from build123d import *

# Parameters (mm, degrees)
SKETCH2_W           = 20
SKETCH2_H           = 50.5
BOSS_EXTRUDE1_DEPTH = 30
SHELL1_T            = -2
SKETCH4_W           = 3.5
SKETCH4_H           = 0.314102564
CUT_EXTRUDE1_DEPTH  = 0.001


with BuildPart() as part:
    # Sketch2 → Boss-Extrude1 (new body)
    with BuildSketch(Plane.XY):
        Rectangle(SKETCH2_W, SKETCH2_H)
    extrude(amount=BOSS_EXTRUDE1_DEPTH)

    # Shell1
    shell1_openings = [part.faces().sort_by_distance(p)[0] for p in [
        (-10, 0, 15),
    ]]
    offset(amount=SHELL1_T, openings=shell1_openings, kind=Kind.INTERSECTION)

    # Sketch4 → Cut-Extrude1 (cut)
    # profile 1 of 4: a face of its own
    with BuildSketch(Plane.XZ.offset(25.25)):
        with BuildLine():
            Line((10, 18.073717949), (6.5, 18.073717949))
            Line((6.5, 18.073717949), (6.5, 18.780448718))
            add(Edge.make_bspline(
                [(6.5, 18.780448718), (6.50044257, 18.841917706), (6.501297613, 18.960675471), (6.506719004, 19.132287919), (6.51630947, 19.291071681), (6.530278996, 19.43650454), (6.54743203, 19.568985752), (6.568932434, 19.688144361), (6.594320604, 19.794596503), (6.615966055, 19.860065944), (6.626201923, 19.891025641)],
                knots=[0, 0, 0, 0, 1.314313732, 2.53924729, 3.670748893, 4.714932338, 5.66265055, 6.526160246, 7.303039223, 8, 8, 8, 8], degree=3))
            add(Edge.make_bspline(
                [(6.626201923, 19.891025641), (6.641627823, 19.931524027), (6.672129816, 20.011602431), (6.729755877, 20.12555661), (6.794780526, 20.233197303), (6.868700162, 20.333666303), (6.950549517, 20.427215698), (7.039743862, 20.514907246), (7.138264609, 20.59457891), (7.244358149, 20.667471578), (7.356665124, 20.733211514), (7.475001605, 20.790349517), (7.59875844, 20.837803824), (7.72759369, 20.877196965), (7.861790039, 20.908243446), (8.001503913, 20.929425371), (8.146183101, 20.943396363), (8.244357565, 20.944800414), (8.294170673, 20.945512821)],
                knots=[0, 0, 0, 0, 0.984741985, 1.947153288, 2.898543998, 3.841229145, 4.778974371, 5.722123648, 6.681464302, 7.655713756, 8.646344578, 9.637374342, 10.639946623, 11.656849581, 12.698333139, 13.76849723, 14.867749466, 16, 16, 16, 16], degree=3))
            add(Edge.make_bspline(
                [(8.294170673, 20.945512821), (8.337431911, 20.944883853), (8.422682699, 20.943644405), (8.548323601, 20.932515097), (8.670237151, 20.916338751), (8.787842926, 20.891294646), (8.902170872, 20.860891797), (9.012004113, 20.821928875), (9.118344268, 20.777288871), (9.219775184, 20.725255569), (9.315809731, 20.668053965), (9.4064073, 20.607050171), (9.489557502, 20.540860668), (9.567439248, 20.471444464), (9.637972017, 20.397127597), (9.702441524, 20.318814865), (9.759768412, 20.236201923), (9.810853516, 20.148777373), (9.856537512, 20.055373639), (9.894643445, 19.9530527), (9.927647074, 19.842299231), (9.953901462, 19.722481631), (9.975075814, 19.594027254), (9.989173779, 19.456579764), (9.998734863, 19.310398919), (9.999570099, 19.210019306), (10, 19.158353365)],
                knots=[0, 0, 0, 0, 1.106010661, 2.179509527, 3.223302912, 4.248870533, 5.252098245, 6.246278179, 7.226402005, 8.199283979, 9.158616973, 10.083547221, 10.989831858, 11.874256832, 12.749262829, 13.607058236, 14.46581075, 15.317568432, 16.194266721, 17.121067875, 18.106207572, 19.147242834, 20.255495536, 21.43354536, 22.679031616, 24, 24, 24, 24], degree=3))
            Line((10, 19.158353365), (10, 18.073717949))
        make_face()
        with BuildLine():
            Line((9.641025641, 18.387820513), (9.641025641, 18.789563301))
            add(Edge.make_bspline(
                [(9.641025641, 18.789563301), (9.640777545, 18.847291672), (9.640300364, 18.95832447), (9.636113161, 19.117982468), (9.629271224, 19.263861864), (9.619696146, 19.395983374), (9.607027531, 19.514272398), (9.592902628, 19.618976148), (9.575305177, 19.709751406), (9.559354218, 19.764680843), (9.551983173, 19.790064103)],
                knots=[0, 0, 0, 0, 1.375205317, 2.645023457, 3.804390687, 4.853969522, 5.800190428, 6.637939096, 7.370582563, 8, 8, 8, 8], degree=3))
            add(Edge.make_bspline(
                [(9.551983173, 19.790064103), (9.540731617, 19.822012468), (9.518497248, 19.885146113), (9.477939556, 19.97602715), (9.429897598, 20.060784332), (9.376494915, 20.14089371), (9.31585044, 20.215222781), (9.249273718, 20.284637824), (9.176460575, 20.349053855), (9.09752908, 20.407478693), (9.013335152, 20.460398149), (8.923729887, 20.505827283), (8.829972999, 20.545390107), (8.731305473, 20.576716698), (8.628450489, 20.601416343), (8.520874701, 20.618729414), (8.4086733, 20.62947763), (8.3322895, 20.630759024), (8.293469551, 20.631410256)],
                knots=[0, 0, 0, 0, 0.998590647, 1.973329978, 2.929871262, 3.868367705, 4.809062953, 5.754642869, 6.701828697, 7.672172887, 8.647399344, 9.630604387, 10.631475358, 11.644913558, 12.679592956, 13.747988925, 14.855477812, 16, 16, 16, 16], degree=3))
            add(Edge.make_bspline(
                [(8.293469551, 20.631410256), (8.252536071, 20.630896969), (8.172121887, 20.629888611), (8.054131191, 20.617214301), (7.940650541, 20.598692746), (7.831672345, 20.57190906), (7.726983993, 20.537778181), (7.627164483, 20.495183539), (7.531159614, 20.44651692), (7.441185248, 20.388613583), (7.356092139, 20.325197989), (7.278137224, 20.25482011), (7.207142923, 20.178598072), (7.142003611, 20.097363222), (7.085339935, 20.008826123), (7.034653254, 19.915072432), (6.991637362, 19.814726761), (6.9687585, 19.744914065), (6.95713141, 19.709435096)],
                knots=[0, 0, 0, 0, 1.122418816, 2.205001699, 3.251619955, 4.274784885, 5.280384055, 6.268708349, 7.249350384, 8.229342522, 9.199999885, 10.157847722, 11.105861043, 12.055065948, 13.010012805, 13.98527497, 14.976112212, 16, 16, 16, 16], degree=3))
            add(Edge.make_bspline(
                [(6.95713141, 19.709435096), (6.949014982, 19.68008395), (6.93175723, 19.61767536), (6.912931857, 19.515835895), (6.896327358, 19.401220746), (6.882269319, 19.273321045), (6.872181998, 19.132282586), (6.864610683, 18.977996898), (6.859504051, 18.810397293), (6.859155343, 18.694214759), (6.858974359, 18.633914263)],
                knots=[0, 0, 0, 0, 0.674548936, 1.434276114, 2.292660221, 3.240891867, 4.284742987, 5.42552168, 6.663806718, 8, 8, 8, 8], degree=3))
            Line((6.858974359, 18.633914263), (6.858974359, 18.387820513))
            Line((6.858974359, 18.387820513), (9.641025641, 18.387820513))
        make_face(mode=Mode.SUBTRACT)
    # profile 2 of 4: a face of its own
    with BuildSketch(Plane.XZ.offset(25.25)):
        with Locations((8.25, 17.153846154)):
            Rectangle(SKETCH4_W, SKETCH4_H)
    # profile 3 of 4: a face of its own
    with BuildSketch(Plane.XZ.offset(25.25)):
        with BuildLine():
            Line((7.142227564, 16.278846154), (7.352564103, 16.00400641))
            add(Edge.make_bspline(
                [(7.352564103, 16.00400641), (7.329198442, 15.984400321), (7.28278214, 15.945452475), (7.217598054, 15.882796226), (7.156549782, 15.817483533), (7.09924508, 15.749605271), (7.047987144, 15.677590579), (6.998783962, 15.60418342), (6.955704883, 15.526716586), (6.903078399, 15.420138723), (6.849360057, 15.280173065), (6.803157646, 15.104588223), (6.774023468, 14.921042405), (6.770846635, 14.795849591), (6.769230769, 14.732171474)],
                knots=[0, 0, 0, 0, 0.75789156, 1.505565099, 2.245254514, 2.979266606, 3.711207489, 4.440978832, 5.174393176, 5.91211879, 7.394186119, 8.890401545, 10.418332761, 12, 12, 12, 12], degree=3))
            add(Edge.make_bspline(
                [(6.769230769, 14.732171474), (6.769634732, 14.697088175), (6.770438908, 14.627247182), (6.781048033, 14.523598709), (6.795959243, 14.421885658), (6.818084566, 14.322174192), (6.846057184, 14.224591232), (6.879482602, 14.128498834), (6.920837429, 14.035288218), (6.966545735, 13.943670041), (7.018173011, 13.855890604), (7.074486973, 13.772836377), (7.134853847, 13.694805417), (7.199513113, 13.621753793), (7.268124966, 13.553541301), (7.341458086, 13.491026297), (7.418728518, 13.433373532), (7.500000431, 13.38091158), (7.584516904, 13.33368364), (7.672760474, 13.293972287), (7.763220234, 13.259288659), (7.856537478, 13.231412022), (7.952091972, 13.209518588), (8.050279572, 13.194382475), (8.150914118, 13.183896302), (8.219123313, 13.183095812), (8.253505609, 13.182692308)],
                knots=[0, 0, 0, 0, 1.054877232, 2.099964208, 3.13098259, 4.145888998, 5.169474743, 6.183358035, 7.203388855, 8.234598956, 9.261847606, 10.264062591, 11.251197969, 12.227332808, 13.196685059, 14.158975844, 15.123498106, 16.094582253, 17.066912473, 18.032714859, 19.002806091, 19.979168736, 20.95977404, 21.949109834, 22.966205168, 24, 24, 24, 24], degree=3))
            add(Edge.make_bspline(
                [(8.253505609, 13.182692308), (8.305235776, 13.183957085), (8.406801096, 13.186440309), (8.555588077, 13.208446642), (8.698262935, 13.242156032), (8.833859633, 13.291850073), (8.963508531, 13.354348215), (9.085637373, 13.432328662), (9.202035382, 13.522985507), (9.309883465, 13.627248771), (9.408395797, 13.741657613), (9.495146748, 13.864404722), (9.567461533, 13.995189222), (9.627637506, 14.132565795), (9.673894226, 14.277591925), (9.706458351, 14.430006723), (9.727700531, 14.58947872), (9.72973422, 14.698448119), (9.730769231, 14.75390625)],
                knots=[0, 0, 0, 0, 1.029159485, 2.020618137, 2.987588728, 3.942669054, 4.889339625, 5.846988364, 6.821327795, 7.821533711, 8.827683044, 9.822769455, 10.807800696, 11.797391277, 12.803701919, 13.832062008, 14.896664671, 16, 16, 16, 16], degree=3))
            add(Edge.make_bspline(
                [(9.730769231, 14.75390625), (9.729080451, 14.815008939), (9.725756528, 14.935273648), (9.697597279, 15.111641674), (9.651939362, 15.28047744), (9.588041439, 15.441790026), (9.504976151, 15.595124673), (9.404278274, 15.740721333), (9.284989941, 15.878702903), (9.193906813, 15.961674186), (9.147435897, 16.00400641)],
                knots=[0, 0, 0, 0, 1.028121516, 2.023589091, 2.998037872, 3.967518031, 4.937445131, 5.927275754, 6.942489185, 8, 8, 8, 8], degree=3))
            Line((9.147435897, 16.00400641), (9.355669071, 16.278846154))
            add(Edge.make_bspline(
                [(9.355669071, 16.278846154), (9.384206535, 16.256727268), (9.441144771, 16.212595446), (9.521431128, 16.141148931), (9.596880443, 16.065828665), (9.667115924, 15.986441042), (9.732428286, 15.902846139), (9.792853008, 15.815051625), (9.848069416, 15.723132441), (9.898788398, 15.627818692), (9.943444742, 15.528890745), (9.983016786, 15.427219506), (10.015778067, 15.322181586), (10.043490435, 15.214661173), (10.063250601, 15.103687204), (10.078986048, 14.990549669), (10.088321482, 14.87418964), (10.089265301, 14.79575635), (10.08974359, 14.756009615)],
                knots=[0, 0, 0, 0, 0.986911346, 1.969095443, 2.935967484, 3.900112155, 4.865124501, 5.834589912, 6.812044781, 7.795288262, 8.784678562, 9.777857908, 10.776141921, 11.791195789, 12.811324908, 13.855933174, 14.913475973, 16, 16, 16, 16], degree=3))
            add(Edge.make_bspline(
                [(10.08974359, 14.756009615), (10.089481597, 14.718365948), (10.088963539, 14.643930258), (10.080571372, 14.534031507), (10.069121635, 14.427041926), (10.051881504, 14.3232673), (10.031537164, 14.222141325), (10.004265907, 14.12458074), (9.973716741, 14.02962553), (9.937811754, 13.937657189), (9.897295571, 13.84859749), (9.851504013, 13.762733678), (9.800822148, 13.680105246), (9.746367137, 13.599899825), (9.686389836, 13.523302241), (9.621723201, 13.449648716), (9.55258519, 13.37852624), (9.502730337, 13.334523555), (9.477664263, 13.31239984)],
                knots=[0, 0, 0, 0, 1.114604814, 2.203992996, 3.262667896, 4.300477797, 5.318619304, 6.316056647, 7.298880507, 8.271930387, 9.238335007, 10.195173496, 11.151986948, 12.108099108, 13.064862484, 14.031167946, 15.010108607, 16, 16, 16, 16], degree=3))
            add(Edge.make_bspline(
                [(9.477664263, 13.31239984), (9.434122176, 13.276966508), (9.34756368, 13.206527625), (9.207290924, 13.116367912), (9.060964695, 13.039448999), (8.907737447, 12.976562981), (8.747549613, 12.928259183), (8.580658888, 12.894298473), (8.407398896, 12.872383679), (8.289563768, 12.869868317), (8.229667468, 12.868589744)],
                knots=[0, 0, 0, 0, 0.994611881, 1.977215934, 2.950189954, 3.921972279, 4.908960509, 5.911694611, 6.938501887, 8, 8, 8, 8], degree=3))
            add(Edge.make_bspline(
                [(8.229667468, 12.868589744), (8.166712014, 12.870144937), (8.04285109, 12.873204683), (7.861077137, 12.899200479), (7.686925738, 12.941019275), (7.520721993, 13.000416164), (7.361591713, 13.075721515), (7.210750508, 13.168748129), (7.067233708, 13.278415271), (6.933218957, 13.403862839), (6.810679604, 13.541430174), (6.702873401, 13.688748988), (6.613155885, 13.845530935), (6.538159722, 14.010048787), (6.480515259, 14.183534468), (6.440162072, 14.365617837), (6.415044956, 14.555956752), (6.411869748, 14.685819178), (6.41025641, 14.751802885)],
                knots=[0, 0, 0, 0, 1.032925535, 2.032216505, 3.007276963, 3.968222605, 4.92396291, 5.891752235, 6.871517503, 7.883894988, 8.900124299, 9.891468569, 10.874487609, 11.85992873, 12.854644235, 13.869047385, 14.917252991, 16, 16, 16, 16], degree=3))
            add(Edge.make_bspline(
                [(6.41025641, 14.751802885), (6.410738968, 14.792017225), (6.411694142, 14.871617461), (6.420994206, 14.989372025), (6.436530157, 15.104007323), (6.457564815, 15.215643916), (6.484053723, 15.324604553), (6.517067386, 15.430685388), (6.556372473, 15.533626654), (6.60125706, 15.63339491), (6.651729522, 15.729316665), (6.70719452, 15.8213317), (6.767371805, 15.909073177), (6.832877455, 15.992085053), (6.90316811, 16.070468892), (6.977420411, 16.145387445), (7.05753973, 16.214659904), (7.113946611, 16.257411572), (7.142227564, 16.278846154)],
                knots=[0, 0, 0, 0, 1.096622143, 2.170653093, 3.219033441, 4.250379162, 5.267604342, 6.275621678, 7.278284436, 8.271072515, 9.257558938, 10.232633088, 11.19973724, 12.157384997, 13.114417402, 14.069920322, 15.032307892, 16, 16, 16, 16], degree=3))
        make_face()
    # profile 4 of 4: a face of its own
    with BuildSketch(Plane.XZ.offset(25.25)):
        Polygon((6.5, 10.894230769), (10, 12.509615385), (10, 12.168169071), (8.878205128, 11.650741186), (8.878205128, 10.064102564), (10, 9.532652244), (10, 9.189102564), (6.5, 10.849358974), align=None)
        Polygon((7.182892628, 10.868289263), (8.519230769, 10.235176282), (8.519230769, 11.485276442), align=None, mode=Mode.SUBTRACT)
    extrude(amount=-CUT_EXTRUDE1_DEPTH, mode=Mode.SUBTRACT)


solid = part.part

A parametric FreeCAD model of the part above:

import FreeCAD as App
import Part
import Sketcher
Q = App.Units.Quantity


def faces_at(feature, points):
    """Names of the faces that lie closest to the given points."""
    faces = feature.Shape.Faces
    near = lambda p: min(range(len(faces)), key=lambda i: faces[i].distToShape(Part.Vertex(*p))[0])
    return sorted({f"Face{near(p) + 1}" for p in points})


def add_polygon(sketch, points):
    """Adds a closed chain of lines whose ends are joined by coincident constraints."""
    first, n = sketch.GeometryCount, len(points)
    for a, b in zip(points, points[1:] + points[:1]):
        sketch.addGeometry(Part.LineSegment(App.Vector(*a, 0), App.Vector(*b, 0)), False)
    for i in range(n):
        sketch.addConstraint(Sketcher.Constraint("Coincident", first + i, 2, first + (i + 1) % n, 1))

doc = App.newDocument("Part")
params = doc.addObject("Spreadsheet::Sheet", "Params")
for row, (alias, value) in enumerate([
    ("sketch1_width", "20 mm"),
    ("sketch1_height", "50.5 mm"),
    ("pad1_length", "30 mm"),
    ("thickness_wall", "2 mm"),
    ("pocket1_length", "0.001 mm"),
], start=1):
    params.set(f"A{row}", alias)
    params.set(f"B{row}", "=" + value)
    params.setAlias(f"B{row}", alias)

body = doc.addObject("PartDesign::Body", "Body")

sketch1 = doc.addObject("Sketcher::SketchObject", "Sketch")
body.addObject(sketch1)
sketch1.AttachmentSupport = (doc.XY_Plane, [""])
sketch1.MapMode = "FlatFace"
add_polygon(sketch1, [(-10, 25), (-10, -25), (10, -25), (10, 25)])
sketch1.addConstraint(Sketcher.Constraint("Vertical", 0))
sketch1.addConstraint(Sketcher.Constraint("Horizontal", 1))
sketch1.addConstraint(Sketcher.Constraint("Vertical", 2))
sketch1.addConstraint(Sketcher.Constraint("Horizontal", 3))
sketch1.addConstraint(Sketcher.Constraint("Symmetric", 0, 2, 2, 2, -1, 1))
sketch1.addConstraint(Sketcher.Constraint("DistanceX", 1, 1, 1, 2, Q("20 mm")))
sketch1.addConstraint(Sketcher.Constraint("DistanceY", 0, 2, 0, 1, Q("50.5 mm")))
sketch1.setExpression("Constraints[9]", "Params.sketch1_width")
sketch1.setExpression("Constraints[10]", "Params.sketch1_height")
pad1 = doc.addObject("PartDesign::Pad", "Pad")
body.addObject(pad1)
pad1.Profile = sketch1
pad1.setExpression("Length", "Params.pad1_length")
doc.recompute()

thickness = doc.addObject("PartDesign::Thickness", "Thickness")
body.addObject(thickness)
thickness.Base = (pad1, faces_at(pad1, [(-10, 0, 15)]))
thickness.setExpression("Value", "Params.thickness_wall")
thickness.Reversed = True
thickness.Join = "Intersection"

sketch2 = doc.addObject("Sketcher::SketchObject", "Sketch001")
body.addObject(sketch2)
sketch2.AttachmentSupport = (doc.XZ_Plane, [""])
sketch2.MapMode = "FlatFace"
sketch2.AttachmentOffset = App.Placement(App.Vector(0, 0, 25.25), App.Rotation())
sketch2.addGeometry(Part.LineSegment(App.Vector(6.5, 18.073718, 0), App.Vector(10, 18.073718, 0)), False)
sketch2.addGeometry(Part.LineSegment(App.Vector(10, 18.073718, 0), App.Vector(10, 19.158353, 0)), False)
sketch2.addGeometry(Part.BSplineCurve([App.Vector(8.294171, 20.945513, 0), App.Vector(8.337432, 20.944884, 0), App.Vector(8.422683, 20.943644, 0), App.Vector(8.548324, 20.932515, 0), App.Vector(8.670237, 20.916339, 0), App.Vector(8.787843, 20.891295, 0), App.Vector(8.902171, 20.860892, 0), App.Vector(9.012004, 20.821929, 0), App.Vector(9.118344, 20.777289, 0), App.Vector(9.219775, 20.725256, 0), App.Vector(9.31581, 20.668054, 0), App.Vector(9.406407, 20.60705, 0), App.Vector(9.489558, 20.540861, 0), App.Vector(9.567439, 20.471444, 0), App.Vector(9.637972, 20.397128, 0), App.Vector(9.702442, 20.318815, 0), App.Vector(9.759768, 20.236202, 0), App.Vector(9.810854, 20.148777, 0), App.Vector(9.856538, 20.055374, 0), App.Vector(9.894643, 19.953053, 0), App.Vector(9.927647, 19.842299, 0), App.Vector(9.953901, 19.722482, 0), App.Vector(9.975076, 19.594027, 0), App.Vector(9.989174, 19.45658, 0), App.Vector(9.998735, 19.310399, 0), App.Vector(9.99957, 19.210019, 0), App.Vector(10, 19.158353, 0)], [4, 1, 1, 1, 1, 1, 1, 1, 1, 1, 1, 1, 1, 1, 1, 1, 1, 1, 1, 1, 1, 1, 1, 1, 4], [0, 1.106010661, 2.179509527, 3.223302912, 4.248870533, 5.252098245, 6.246278179, 7.226402005, 8.199283979, 9.158616973, 10.083547221, 10.989831858, 11.874256832, 12.749262829, 13.607058236, 14.46581075, 15.317568432, 16.194266721, 17.121067875, 18.106207572, 19.147242834, 20.255495536, 21.43354536, 22.679031616, 24], False, 3, [1, 1, 1, 1, 1, 1, 1, 1, 1, 1, 1, 1, 1, 1, 1, 1, 1, 1, 1, 1, 1, 1, 1, 1, 1, 1, 1], False), False)
sketch2.addGeometry(Part.BSplineCurve([App.Vector(6.626202, 19.891026, 0), App.Vector(6.641628, 19.931524, 0), App.Vector(6.67213, 20.011602, 0), App.Vector(6.729756, 20.125557, 0), App.Vector(6.794781, 20.233197, 0), App.Vector(6.8687, 20.333666, 0), App.Vector(6.95055, 20.427216, 0), App.Vector(7.039744, 20.514907, 0), App.Vector(7.138265, 20.594579, 0), App.Vector(7.244358, 20.667472, 0), App.Vector(7.356665, 20.733212, 0), App.Vector(7.475002, 20.79035, 0), App.Vector(7.598758, 20.837804, 0), App.Vector(7.727594, 20.877197, 0), App.Vector(7.86179, 20.908243, 0), App.Vector(8.001504, 20.929425, 0), App.Vector(8.146183, 20.943396, 0), App.Vector(8.244358, 20.9448, 0), App.Vector(8.294171, 20.945513, 0)], [4, 1, 1, 1, 1, 1, 1, 1, 1, 1, 1, 1, 1, 1, 1, 1, 4], [0, 0.984741985, 1.947153288, 2.898543998, 3.841229145, 4.778974371, 5.722123648, 6.681464302, 7.655713756, 8.646344578, 9.637374342, 10.639946623, 11.656849581, 12.698333139, 13.76849723, 14.867749466, 16], False, 3, [1, 1, 1, 1, 1, 1, 1, 1, 1, 1, 1, 1, 1, 1, 1, 1, 1, 1, 1], False), False)
sketch2.addGeometry(Part.BSplineCurve([App.Vector(6.5, 18.780449, 0), App.Vector(6.500443, 18.841918, 0), App.Vector(6.501298, 18.960675, 0), App.Vector(6.506719, 19.132288, 0), App.Vector(6.516309, 19.291072, 0), App.Vector(6.530279, 19.436505, 0), App.Vector(6.547432, 19.568986, 0), App.Vector(6.568932, 19.688144, 0), App.Vector(6.594321, 19.794597, 0), App.Vector(6.615966, 19.860066, 0), App.Vector(6.626202, 19.891026, 0)], [4, 1, 1, 1, 1, 1, 1, 1, 4], [0, 1.314313732, 2.53924729, 3.670748893, 4.714932338, 5.66265055, 6.526160246, 7.303039223, 8], False, 3, [1, 1, 1, 1, 1, 1, 1, 1, 1, 1, 1], False), False)
sketch2.addGeometry(Part.LineSegment(App.Vector(6.5, 18.780449, 0), App.Vector(6.5, 18.073718, 0)), False)
sketch2.addGeometry(Part.LineSegment(App.Vector(9.641026, 18.387821, 0), App.Vector(6.858974, 18.387821, 0)), False)
sketch2.addGeometry(Part.LineSegment(App.Vector(6.858974, 18.387821, 0), App.Vector(6.858974, 18.633914, 0)), False)
sketch2.addGeometry(Part.BSplineCurve([App.Vector(6.957131, 19.709435, 0), App.Vector(6.949015, 19.680084, 0), App.Vector(6.931757, 19.617675, 0), App.Vector(6.912932, 19.515836, 0), App.Vector(6.896327, 19.401221, 0), App.Vector(6.882269, 19.273321, 0), App.Vector(6.872182, 19.132283, 0), App.Vector(6.864611, 18.977997, 0), App.Vector(6.859504, 18.810397, 0), App.Vector(6.859155, 18.694215, 0), App.Vector(6.858974, 18.633914, 0)], [4, 1, 1, 1, 1, 1, 1, 1, 4], [0, 0.674548936, 1.434276114, 2.292660221, 3.240891867, 4.284742987, 5.42552168, 6.663806718, 8], False, 3, [1, 1, 1, 1, 1, 1, 1, 1, 1, 1, 1], False), False)
sketch2.addGeometry(Part.BSplineCurve([App.Vector(8.29347, 20.63141, 0), App.Vector(8.252536, 20.630897, 0), App.Vector(8.172122, 20.629889, 0), App.Vector(8.054131, 20.617214, 0), App.Vector(7.940651, 20.598693, 0), App.Vector(7.831672, 20.571909, 0), App.Vector(7.726984, 20.537778, 0), App.Vector(7.627164, 20.495184, 0), App.Vector(7.53116, 20.446517, 0), App.Vector(7.441185, 20.388614, 0), App.Vector(7.356092, 20.325198, 0), App.Vector(7.278137, 20.25482, 0), App.Vector(7.207143, 20.178598, 0), App.Vector(7.142004, 20.097363, 0), App.Vector(7.08534, 20.008826, 0), App.Vector(7.034653, 19.915072, 0), App.Vector(6.991637, 19.814727, 0), App.Vector(6.968758, 19.744914, 0), App.Vector(6.957131, 19.709435, 0)], [4, 1, 1, 1, 1, 1, 1, 1, 1, 1, 1, 1, 1, 1, 1, 1, 4], [0, 1.122418816, 2.205001699, 3.251619955, 4.274784885, 5.280384055, 6.268708349, 7.249350384, 8.229342522, 9.199999885, 10.157847722, 11.105861043, 12.055065948, 13.010012805, 13.98527497, 14.976112212, 16], False, 3, [1, 1, 1, 1, 1, 1, 1, 1, 1, 1, 1, 1, 1, 1, 1, 1, 1, 1, 1], False), False)
sketch2.addGeometry(Part.BSplineCurve([App.Vector(9.551983, 19.790064, 0), App.Vector(9.540732, 19.822012, 0), App.Vector(9.518497, 19.885146, 0), App.Vector(9.47794, 19.976027, 0), App.Vector(9.429898, 20.060784, 0), App.Vector(9.376495, 20.140894, 0), App.Vector(9.31585, 20.215223, 0), App.Vector(9.249274, 20.284638, 0), App.Vector(9.176461, 20.349054, 0), App.Vector(9.097529, 20.407479, 0), App.Vector(9.013335, 20.460398, 0), App.Vector(8.92373, 20.505827, 0), App.Vector(8.829973, 20.54539, 0), App.Vector(8.731305, 20.576717, 0), App.Vector(8.62845, 20.601416, 0), App.Vector(8.520875, 20.618729, 0), App.Vector(8.408673, 20.629478, 0), App.Vector(8.332289, 20.630759, 0), App.Vector(8.29347, 20.63141, 0)], [4, 1, 1, 1, 1, 1, 1, 1, 1, 1, 1, 1, 1, 1, 1, 1, 4], [0, 0.998590647, 1.973329978, 2.929871262, 3.868367705, 4.809062953, 5.754642869, 6.701828697, 7.672172887, 8.647399344, 9.630604387, 10.631475358, 11.644913558, 12.679592956, 13.747988925, 14.855477812, 16], False, 3, [1, 1, 1, 1, 1, 1, 1, 1, 1, 1, 1, 1, 1, 1, 1, 1, 1, 1, 1], False), False)
sketch2.addGeometry(Part.BSplineCurve([App.Vector(9.641026, 18.789563, 0), App.Vector(9.640778, 18.847292, 0), App.Vector(9.6403, 18.958324, 0), App.Vector(9.636113, 19.117982, 0), App.Vector(9.629271, 19.263862, 0), App.Vector(9.619696, 19.395983, 0), App.Vector(9.607028, 19.514272, 0), App.Vector(9.592903, 19.618976, 0), App.Vector(9.575305, 19.709751, 0), App.Vector(9.559354, 19.764681, 0), App.Vector(9.551983, 19.790064, 0)], [4, 1, 1, 1, 1, 1, 1, 1, 4], [0, 1.375205317, 2.645023457, 3.804390687, 4.853969522, 5.800190428, 6.637939096, 7.370582563, 8], False, 3, [1, 1, 1, 1, 1, 1, 1, 1, 1, 1, 1], False), False)
sketch2.addGeometry(Part.LineSegment(App.Vector(9.641026, 18.789563, 0), App.Vector(9.641026, 18.387821, 0)), False)
add_polygon(sketch2, [(6.5, 17.310897), (6.5, 16.996795), (10, 16.996795), (10, 17.310897)])
sketch2.addGeometry(Part.LineSegment(App.Vector(7.352564, 16.004006, 0), App.Vector(7.142228, 16.278846, 0)), False)
sketch2.addGeometry(Part.BSplineCurve([App.Vector(6.410256, 14.751803, 0), App.Vector(6.410739, 14.792017, 0), App.Vector(6.411694, 14.871617, 0), App.Vector(6.420994, 14.989372, 0), App.Vector(6.43653, 15.104007, 0), App.Vector(6.457565, 15.215644, 0), App.Vector(6.484054, 15.324605, 0), App.Vector(6.517067, 15.430685, 0), App.Vector(6.556372, 15.533627, 0), App.Vector(6.601257, 15.633395, 0), App.Vector(6.65173, 15.729317, 0), App.Vector(6.707195, 15.821332, 0), App.Vector(6.767372, 15.909073, 0), App.Vector(6.832877, 15.992085, 0), App.Vector(6.903168, 16.070469, 0), App.Vector(6.97742, 16.145387, 0), App.Vector(7.05754, 16.21466, 0), App.Vector(7.113947, 16.257412, 0), App.Vector(7.142228, 16.278846, 0)], [4, 1, 1, 1, 1, 1, 1, 1, 1, 1, 1, 1, 1, 1, 1, 1, 4], [0, 1.096622143, 2.170653093, 3.219033441, 4.250379162, 5.267604342, 6.275621678, 7.278284436, 8.271072515, 9.257558938, 10.232633088, 11.19973724, 12.157384997, 13.114417402, 14.069920322, 15.032307892, 16], False, 3, [1, 1, 1, 1, 1, 1, 1, 1, 1, 1, 1, 1, 1, 1, 1, 1, 1, 1, 1], False), False)
sketch2.addGeometry(Part.BSplineCurve([App.Vector(8.229667, 12.86859, 0), App.Vector(8.166712, 12.870145, 0), App.Vector(8.042851, 12.873205, 0), App.Vector(7.861077, 12.8992, 0), App.Vector(7.686926, 12.941019, 0), App.Vector(7.520722, 13.000416, 0), App.Vector(7.361592, 13.075722, 0), App.Vector(7.210751, 13.168748, 0), App.Vector(7.067234, 13.278415, 0), App.Vector(6.933219, 13.403863, 0), App.Vector(6.81068, 13.54143, 0), App.Vector(6.702873, 13.688749, 0), App.Vector(6.613156, 13.845531, 0), App.Vector(6.53816, 14.010049, 0), App.Vector(6.480515, 14.183534, 0), App.Vector(6.440162, 14.365618, 0), App.Vector(6.415045, 14.555957, 0), App.Vector(6.41187, 14.685819, 0), App.Vector(6.410256, 14.751803, 0)], [4, 1, 1, 1, 1, 1, 1, 1, 1, 1, 1, 1, 1, 1, 1, 1, 4], [0, 1.032925535, 2.032216505, 3.007276963, 3.968222605, 4.92396291, 5.891752235, 6.871517503, 7.883894988, 8.900124299, 9.891468569, 10.874487609, 11.85992873, 12.854644235, 13.869047385, 14.917252991, 16], False, 3, [1, 1, 1, 1, 1, 1, 1, 1, 1, 1, 1, 1, 1, 1, 1, 1, 1, 1, 1], False), False)
sketch2.addGeometry(Part.BSplineCurve([App.Vector(9.477664, 13.3124, 0), App.Vector(9.434122, 13.276967, 0), App.Vector(9.347564, 13.206528, 0), App.Vector(9.207291, 13.116368, 0), App.Vector(9.060965, 13.039449, 0), App.Vector(8.907737, 12.976563, 0), App.Vector(8.74755, 12.928259, 0), App.Vector(8.580659, 12.894298, 0), App.Vector(8.407399, 12.872384, 0), App.Vector(8.289564, 12.869868, 0), App.Vector(8.229667, 12.86859, 0)], [4, 1, 1, 1, 1, 1, 1, 1, 4], [0, 0.994611881, 1.977215934, 2.950189954, 3.921972279, 4.908960509, 5.911694611, 6.938501887, 8], False, 3, [1, 1, 1, 1, 1, 1, 1, 1, 1, 1, 1], False), False)
sketch2.addGeometry(Part.BSplineCurve([App.Vector(10.089744, 14.75601, 0), App.Vector(10.089482, 14.718366, 0), App.Vector(10.088964, 14.64393, 0), App.Vector(10.080571, 14.534032, 0), App.Vector(10.069122, 14.427042, 0), App.Vector(10.051882, 14.323267, 0), App.Vector(10.031537, 14.222141, 0), App.Vector(10.004266, 14.124581, 0), App.Vector(9.973717, 14.029626, 0), App.Vector(9.937812, 13.937657, 0), App.Vector(9.897296, 13.848597, 0), App.Vector(9.851504, 13.762734, 0), App.Vector(9.800822, 13.680105, 0), App.Vector(9.746367, 13.5999, 0), App.Vector(9.68639, 13.523302, 0), App.Vector(9.621723, 13.449649, 0), App.Vector(9.552585, 13.378526, 0), App.Vector(9.50273, 13.334524, 0), App.Vector(9.477664, 13.3124, 0)], [4, 1, 1, 1, 1, 1, 1, 1, 1, 1, 1, 1, 1, 1, 1, 1, 4], [0, 1.114604814, 2.203992996, 3.262667896, 4.300477797, 5.318619304, 6.316056647, 7.298880507, 8.271930387, 9.238335007, 10.195173496, 11.151986948, 12.108099108, 13.064862484, 14.031167946, 15.010108607, 16], False, 3, [1, 1, 1, 1, 1, 1, 1, 1, 1, 1, 1, 1, 1, 1, 1, 1, 1, 1, 1], False), False)
sketch2.addGeometry(Part.BSplineCurve([App.Vector(9.355669, 16.278846, 0), App.Vector(9.384207, 16.256727, 0), App.Vector(9.441145, 16.212595, 0), App.Vector(9.521431, 16.141149, 0), App.Vector(9.59688, 16.065829, 0), App.Vector(9.667116, 15.986441, 0), App.Vector(9.732428, 15.902846, 0), App.Vector(9.792853, 15.815052, 0), App.Vector(9.848069, 15.723132, 0), App.Vector(9.898788, 15.627819, 0), App.Vector(9.943445, 15.528891, 0), App.Vector(9.983017, 15.42722, 0), App.Vector(10.015778, 15.322182, 0), App.Vector(10.04349, 15.214661, 0), App.Vector(10.063251, 15.103687, 0), App.Vector(10.078986, 14.99055, 0), App.Vector(10.088321, 14.87419, 0), App.Vector(10.089265, 14.795756, 0), App.Vector(10.089744, 14.75601, 0)], [4, 1, 1, 1, 1, 1, 1, 1, 1, 1, 1, 1, 1, 1, 1, 1, 4], [0, 0.986911346, 1.969095443, 2.935967484, 3.900112155, 4.865124501, 5.834589912, 6.812044781, 7.795288262, 8.784678562, 9.777857908, 10.776141921, 11.791195789, 12.811324908, 13.855933174, 14.913475973, 16], False, 3, [1, 1, 1, 1, 1, 1, 1, 1, 1, 1, 1, 1, 1, 1, 1, 1, 1, 1, 1], False), False)
sketch2.addGeometry(Part.LineSegment(App.Vector(9.355669, 16.278846, 0), App.Vector(9.147436, 16.004006, 0)), False)
sketch2.addGeometry(Part.BSplineCurve([App.Vector(9.730769, 14.753906, 0), App.Vector(9.72908, 14.815009, 0), App.Vector(9.725757, 14.935274, 0), App.Vector(9.697597, 15.111642, 0), App.Vector(9.651939, 15.280477, 0), App.Vector(9.588041, 15.44179, 0), App.Vector(9.504976, 15.595125, 0), App.Vector(9.404278, 15.740721, 0), App.Vector(9.28499, 15.878703, 0), App.Vector(9.193907, 15.961674, 0), App.Vector(9.147436, 16.004006, 0)], [4, 1, 1, 1, 1, 1, 1, 1, 4], [0, 1.028121516, 2.023589091, 2.998037872, 3.967518031, 4.937445131, 5.927275754, 6.942489185, 8], False, 3, [1, 1, 1, 1, 1, 1, 1, 1, 1, 1, 1], False), False)
sketch2.addGeometry(Part.BSplineCurve([App.Vector(8.253506, 13.182692, 0), App.Vector(8.305236, 13.183957, 0), App.Vector(8.406801, 13.18644, 0), App.Vector(8.555588, 13.208447, 0), App.Vector(8.698263, 13.242156, 0), App.Vector(8.83386, 13.29185, 0), App.Vector(8.963509, 13.354348, 0), App.Vector(9.085637, 13.432329, 0), App.Vector(9.202035, 13.522986, 0), App.Vector(9.309883, 13.627249, 0), App.Vector(9.408396, 13.741658, 0), App.Vector(9.495147, 13.864405, 0), App.Vector(9.567462, 13.995189, 0), App.Vector(9.627638, 14.132566, 0), App.Vector(9.673894, 14.277592, 0), App.Vector(9.706458, 14.430007, 0), App.Vector(9.727701, 14.589479, 0), App.Vector(9.729734, 14.698448, 0), App.Vector(9.730769, 14.753906, 0)], [4, 1, 1, 1, 1, 1, 1, 1, 1, 1, 1, 1, 1, 1, 1, 1, 4], [0, 1.029159485, 2.020618137, 2.987588728, 3.942669054, 4.889339625, 5.846988364, 6.821327795, 7.821533711, 8.827683044, 9.822769455, 10.807800696, 11.797391277, 12.803701919, 13.832062008, 14.896664671, 16], False, 3, [1, 1, 1, 1, 1, 1, 1, 1, 1, 1, 1, 1, 1, 1, 1, 1, 1, 1, 1], False), False)
sketch2.addGeometry(Part.BSplineCurve([App.Vector(6.769231, 14.732171, 0), App.Vector(6.769635, 14.697088, 0), App.Vector(6.770439, 14.627247, 0), App.Vector(6.781048, 14.523599, 0), App.Vector(6.795959, 14.421886, 0), App.Vector(6.818085, 14.322174, 0), App.Vector(6.846057, 14.224591, 0), App.Vector(6.879483, 14.128499, 0), App.Vector(6.920837, 14.035288, 0), App.Vector(6.966546, 13.94367, 0), App.Vector(7.018173, 13.855891, 0), App.Vector(7.074487, 13.772836, 0), App.Vector(7.134854, 13.694805, 0), App.Vector(7.199513, 13.621754, 0), App.Vector(7.268125, 13.553541, 0), App.Vector(7.341458, 13.491026, 0), App.Vector(7.418729, 13.433374, 0), App.Vector(7.5, 13.380912, 0), App.Vector(7.584517, 13.333684, 0), App.Vector(7.67276, 13.293972, 0), App.Vector(7.76322, 13.259289, 0), App.Vector(7.856537, 13.231412, 0), App.Vector(7.952092, 13.209519, 0), App.Vector(8.05028, 13.194382, 0), App.Vector(8.150914, 13.183896, 0), App.Vector(8.219123, 13.183096, 0), App.Vector(8.253506, 13.182692, 0)], [4, 1, 1, 1, 1, 1, 1, 1, 1, 1, 1, 1, 1, 1, 1, 1, 1, 1, 1, 1, 1, 1, 1, 1, 4], [0, 1.054877232, 2.099964208, 3.13098259, 4.145888998, 5.169474743, 6.183358035, 7.203388855, 8.234598956, 9.261847606, 10.264062591, 11.251197969, 12.227332808, 13.196685059, 14.158975844, 15.123498106, 16.094582253, 17.066912473, 18.032714859, 19.002806091, 19.979168736, 20.95977404, 21.949109834, 22.966205168, 24], False, 3, [1, 1, 1, 1, 1, 1, 1, 1, 1, 1, 1, 1, 1, 1, 1, 1, 1, 1, 1, 1, 1, 1, 1, 1, 1, 1, 1], False), False)
sketch2.addGeometry(Part.BSplineCurve([App.Vector(7.352564, 16.004006, 0), App.Vector(7.329198, 15.9844, 0), App.Vector(7.282782, 15.945452, 0), App.Vector(7.217598, 15.882796, 0), App.Vector(7.15655, 15.817484, 0), App.Vector(7.099245, 15.749605, 0), App.Vector(7.047987, 15.677591, 0), App.Vector(6.998784, 15.604183, 0), App.Vector(6.955705, 15.526717, 0), App.Vector(6.903078, 15.420139, 0), App.Vector(6.84936, 15.280173, 0), App.Vector(6.803158, 15.104588, 0), App.Vector(6.774023, 14.921042, 0), App.Vector(6.770847, 14.79585, 0), App.Vector(6.769231, 14.732171, 0)], [4, 1, 1, 1, 1, 1, 1, 1, 1, 1, 1, 1, 4], [0, 0.75789156, 1.505565099, 2.245254514, 2.979266606, 3.711207489, 4.440978832, 5.174393176, 5.91211879, 7.394186119, 8.890401545, 10.418332761, 12], False, 3, [1, 1, 1, 1, 1, 1, 1, 1, 1, 1, 1, 1, 1, 1, 1], False), False)
add_polygon(sketch2, [(10, 12.509615), (6.5, 10.894231), (6.5, 10.849359), (10, 9.189103), (10, 9.532652), (8.878205, 10.064103), (8.878205, 11.650741), (10, 12.168169)])
add_polygon(sketch2, [(7.182893, 10.868289), (8.519231, 11.485276), (8.519231, 10.235176)])
sketch2.addConstraint(Sketcher.Constraint("Block", 2))
sketch2.addConstraint(Sketcher.Constraint("Block", 3))
sketch2.addConstraint(Sketcher.Constraint("Block", 4))
sketch2.addConstraint(Sketcher.Constraint("Block", 8))
sketch2.addConstraint(Sketcher.Constraint("Block", 9))
sketch2.addConstraint(Sketcher.Constraint("Block", 10))
sketch2.addConstraint(Sketcher.Constraint("Block", 11))
sketch2.addConstraint(Sketcher.Constraint("Block", 18))
sketch2.addConstraint(Sketcher.Constraint("Block", 19))
sketch2.addConstraint(Sketcher.Constraint("Block", 20))
sketch2.addConstraint(Sketcher.Constraint("Block", 21))
sketch2.addConstraint(Sketcher.Constraint("Block", 22))
sketch2.addConstraint(Sketcher.Constraint("Block", 24))
sketch2.addConstraint(Sketcher.Constraint("Block", 25))
sketch2.addConstraint(Sketcher.Constraint("Block", 26))
sketch2.addConstraint(Sketcher.Constraint("Block", 27))
sketch2.addConstraint(Sketcher.Constraint("Coincident", 0, 2, 1, 1))
sketch2.addConstraint(Sketcher.Constraint("Coincident", 1, 2, 2, 2))
sketch2.addConstraint(Sketcher.Constraint("Coincident", 4, 1, 5, 1))
sketch2.addConstraint(Sketcher.Constraint("Coincident", 5, 2, 0, 1))
sketch2.addConstraint(Sketcher.Constraint("Coincident", 6, 2, 7, 1))
sketch2.addConstraint(Sketcher.Constraint("Coincident", 7, 2, 8, 2))
sketch2.addConstraint(Sketcher.Constraint("Coincident", 11, 1, 12, 1))
sketch2.addConstraint(Sketcher.Constraint("Coincident", 12, 2, 6, 1))
sketch2.addConstraint(Sketcher.Constraint("Coincident", 17, 2, 18, 2))
sketch2.addConstraint(Sketcher.Constraint("Coincident", 22, 1, 23, 1))
sketch2.addConstraint(Sketcher.Constraint("Coincident", 23, 2, 24, 2))
sketch2.addConstraint(Sketcher.Constraint("Coincident", 27, 1, 17, 1))
sketch2.addConstraint(Sketcher.Constraint("Horizontal", 0))
sketch2.addConstraint(Sketcher.Constraint("Vertical", 1))
sketch2.addConstraint(Sketcher.Constraint("Vertical", 5))
sketch2.addConstraint(Sketcher.Constraint("Horizontal", 6))
sketch2.addConstraint(Sketcher.Constraint("Vertical", 7))
sketch2.addConstraint(Sketcher.Constraint("Vertical", 12))
sketch2.addConstraint(Sketcher.Constraint("Vertical", 13))
sketch2.addConstraint(Sketcher.Constraint("Horizontal", 14))
sketch2.addConstraint(Sketcher.Constraint("Vertical", 15))
sketch2.addConstraint(Sketcher.Constraint("Horizontal", 16))
sketch2.addConstraint(Sketcher.Constraint("Vertical", 29))
sketch2.addConstraint(Sketcher.Constraint("Vertical", 31))
sketch2.addConstraint(Sketcher.Constraint("Vertical", 33))
sketch2.addConstraint(Sketcher.Constraint("Vertical", 35))
sketch2.addConstraint(Sketcher.Constraint("Vertical", 37))
sketch2.addConstraint(Sketcher.Constraint("Vertical", 5, 2, 13, 2))
sketch2.addConstraint(Sketcher.Constraint("Vertical", 1, 2, 14, 2))
sketch2.addConstraint(Sketcher.Constraint("Vertical", 16, 2, 28, 2))
sketch2.addConstraint(Sketcher.Constraint("Vertical", 15, 2, 30, 2))
sketch2.addConstraint(Sketcher.Constraint("Vertical", 31, 2, 34, 2))
sketch2.addConstraint(Sketcher.Constraint("DistanceY", 37, 2, 37, 1, Q("1.2501 mm")))
sketch2.addConstraint(Sketcher.Constraint("DistanceY", 30, 2, 32, 2, Q("0.875 mm")))
sketch2.addConstraint(Sketcher.Constraint("DistanceY", 5, 2, 5, 1, Q("0.706731 mm")))
sketch2.addConstraint(Sketcher.Constraint("DistanceY", 29, 2, 29, 1, Q("0.044872 mm")))
sketch2.addConstraint(Sketcher.Constraint("DistanceY", 31, 1, 31, 2, Q("0.34355 mm")))
sketch2.addConstraint(Sketcher.Constraint("DistanceY", 33, 1, 33, 2, Q("1.586639 mm")))
sketch2.addConstraint(Sketcher.Constraint("DistanceY", 7, 1, 7, 2, Q("0.246094 mm")))
sketch2.addConstraint(Sketcher.Constraint("DistanceY", 13, 2, 13, 1, Q("0.314103 mm")))
sketch2.addConstraint(Sketcher.Constraint("DistanceY", 35, 1, 35, 2, Q("0.341446 mm")))
sketch2.addConstraint(Sketcher.Constraint("DistanceY", -1, 1, 28, 2, Q("10.894231 mm")))
sketch2.addConstraint(Sketcher.Constraint("DistanceY", -1, 1, 33, 2, Q("11.650741 mm")))
sketch2.addConstraint(Sketcher.Constraint("DistanceY", -1, 1, 34, 2, Q("12.168169 mm")))
sketch2.addConstraint(Sketcher.Constraint("DistanceX", -1, 1, 36, 2, Q("8.519231 mm")))
sketch2.addConstraint(Sketcher.Constraint("DistanceY", -1, 1, 38, 2, Q("10.868289 mm")))
sketch2.addConstraint(Sketcher.Constraint("DistanceY", 13, 2, 7, 2, Q("1.637119 mm")))
sketch2.addConstraint(Sketcher.Constraint("DistanceX", 32, 2, 23, 2, Q("0.269231 mm")))
sketch2.addConstraint(Sketcher.Constraint("DistanceY", 36, 2, 35, 2, Q("1.024339 mm")))
sketch2.addConstraint(Sketcher.Constraint("DistanceX", 38, 2, 36, 2, Q("1.336338 mm")))
pocket1 = doc.addObject("PartDesign::Pocket", "Pocket")
body.addObject(pocket1)
pocket1.Profile = sketch2
pocket1.setExpression("Length", "Params.pocket1_length")

doc.recompute()
